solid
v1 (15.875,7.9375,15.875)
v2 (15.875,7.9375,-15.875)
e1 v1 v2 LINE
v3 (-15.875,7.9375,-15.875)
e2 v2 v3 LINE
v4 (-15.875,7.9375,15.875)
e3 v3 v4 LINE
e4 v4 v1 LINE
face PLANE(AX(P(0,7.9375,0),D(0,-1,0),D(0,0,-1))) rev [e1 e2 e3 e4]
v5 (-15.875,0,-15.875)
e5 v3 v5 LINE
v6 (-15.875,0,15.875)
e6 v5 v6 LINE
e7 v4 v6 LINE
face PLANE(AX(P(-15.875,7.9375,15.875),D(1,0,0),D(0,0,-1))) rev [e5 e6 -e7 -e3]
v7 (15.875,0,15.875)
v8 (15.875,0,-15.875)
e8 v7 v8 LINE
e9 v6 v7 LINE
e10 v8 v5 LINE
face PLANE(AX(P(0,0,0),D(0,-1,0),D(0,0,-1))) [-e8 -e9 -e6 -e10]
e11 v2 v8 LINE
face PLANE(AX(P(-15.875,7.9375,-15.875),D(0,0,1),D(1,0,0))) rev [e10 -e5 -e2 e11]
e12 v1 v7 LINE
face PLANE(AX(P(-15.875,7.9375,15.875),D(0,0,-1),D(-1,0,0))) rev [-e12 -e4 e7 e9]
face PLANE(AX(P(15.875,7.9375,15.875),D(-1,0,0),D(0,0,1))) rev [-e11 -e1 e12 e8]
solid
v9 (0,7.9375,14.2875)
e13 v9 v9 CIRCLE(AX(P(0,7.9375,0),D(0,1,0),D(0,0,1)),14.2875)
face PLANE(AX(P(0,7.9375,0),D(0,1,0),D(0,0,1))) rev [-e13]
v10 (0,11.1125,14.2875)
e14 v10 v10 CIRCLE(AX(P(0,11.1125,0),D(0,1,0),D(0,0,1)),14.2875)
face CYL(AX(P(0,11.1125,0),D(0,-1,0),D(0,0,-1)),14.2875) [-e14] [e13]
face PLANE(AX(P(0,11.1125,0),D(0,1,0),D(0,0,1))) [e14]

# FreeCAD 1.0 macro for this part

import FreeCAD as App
import Part
import Sketcher
from FreeCAD import Vector
Q = App.Units.Quantity


def add_polygon(sketch, points):
    """Adds a closed chain of lines whose ends are joined by coincident constraints."""
    first, n = sketch.GeometryCount, len(points)
    for a, b in zip(points, points[1:] + points[:1]):
        sketch.addGeometry(Part.LineSegment(App.Vector(*a, 0), App.Vector(*b, 0)), False)
    for i in range(n):
        sketch.addConstraint(Sketcher.Constraint("Coincident", first + i, 2, first + (i + 1) % n, 1))

doc = App.newDocument("Part")
body = doc.addObject("PartDesign::Body", "Body")

# Sketch on XZ plane
sketch1 = body.newObject("Sketcher::SketchObject", "Sketch")
sketch1.AttachmentSupport = (doc.getObject("XZ_Plane"), [""])
sketch1.MapMode = "FlatFace"
add_polygon(sketch1, [(-16, -16), (-16, 16), (16, 16), (16, -16)])  # lines 0-3
sketch1.addConstraint(Sketcher.Constraint("Vertical", 0))
sketch1.addConstraint(Sketcher.Constraint("Horizontal", 1))
sketch1.addConstraint(Sketcher.Constraint("Vertical", 2))
sketch1.addConstraint(Sketcher.Constraint("Horizontal", 3))
sketch1.addConstraint(Sketcher.Constraint("Symmetric", 0, 2, 2, 2, -1, 1))
sketch1.addConstraint(Sketcher.Constraint("Equal", 3, 0))
sketch1.addConstraint(Sketcher.Constraint("DistanceX", 1, 1, 1, 2, Q("1.25 in")))
pad1 = body.newObject("PartDesign::Pad", "Pad")
pad1.Profile = sketch1
pad1.Length = Q("0.3125 in")
pad1.Reversed = True
body2 = doc.addObject("PartDesign::Body", "Body001")

# Sketch on XZ plane
sketch2 = body2.newObject("Sketcher::SketchObject", "Sketch001")
sketch2.AttachmentSupport = (doc.getObject("XZ_Plane001"), [""])
sketch2.MapMode = "FlatFace"
sketch2.AttachmentOffset = App.Placement(Vector(0, 0, -0.3125 * 25.4), App.Rotation())
sketch2.addGeometry(Part.Circle(Vector(0, 0, 0), Vector(0, 0, 1), 14), False)
sketch2.addConstraint(Sketcher.Constraint("Coincident", 0, 3, -1, 1))
sketch2.addConstraint(Sketcher.Constraint("Diameter", 0, Q("1.125 in")))
pad2 = body2.newObject("PartDesign::Pad", "Pad001")
pad2.Profile = sketch2
pad2.Length = Q("0.125 in")
pad2.Reversed = True

doc.recompute()
